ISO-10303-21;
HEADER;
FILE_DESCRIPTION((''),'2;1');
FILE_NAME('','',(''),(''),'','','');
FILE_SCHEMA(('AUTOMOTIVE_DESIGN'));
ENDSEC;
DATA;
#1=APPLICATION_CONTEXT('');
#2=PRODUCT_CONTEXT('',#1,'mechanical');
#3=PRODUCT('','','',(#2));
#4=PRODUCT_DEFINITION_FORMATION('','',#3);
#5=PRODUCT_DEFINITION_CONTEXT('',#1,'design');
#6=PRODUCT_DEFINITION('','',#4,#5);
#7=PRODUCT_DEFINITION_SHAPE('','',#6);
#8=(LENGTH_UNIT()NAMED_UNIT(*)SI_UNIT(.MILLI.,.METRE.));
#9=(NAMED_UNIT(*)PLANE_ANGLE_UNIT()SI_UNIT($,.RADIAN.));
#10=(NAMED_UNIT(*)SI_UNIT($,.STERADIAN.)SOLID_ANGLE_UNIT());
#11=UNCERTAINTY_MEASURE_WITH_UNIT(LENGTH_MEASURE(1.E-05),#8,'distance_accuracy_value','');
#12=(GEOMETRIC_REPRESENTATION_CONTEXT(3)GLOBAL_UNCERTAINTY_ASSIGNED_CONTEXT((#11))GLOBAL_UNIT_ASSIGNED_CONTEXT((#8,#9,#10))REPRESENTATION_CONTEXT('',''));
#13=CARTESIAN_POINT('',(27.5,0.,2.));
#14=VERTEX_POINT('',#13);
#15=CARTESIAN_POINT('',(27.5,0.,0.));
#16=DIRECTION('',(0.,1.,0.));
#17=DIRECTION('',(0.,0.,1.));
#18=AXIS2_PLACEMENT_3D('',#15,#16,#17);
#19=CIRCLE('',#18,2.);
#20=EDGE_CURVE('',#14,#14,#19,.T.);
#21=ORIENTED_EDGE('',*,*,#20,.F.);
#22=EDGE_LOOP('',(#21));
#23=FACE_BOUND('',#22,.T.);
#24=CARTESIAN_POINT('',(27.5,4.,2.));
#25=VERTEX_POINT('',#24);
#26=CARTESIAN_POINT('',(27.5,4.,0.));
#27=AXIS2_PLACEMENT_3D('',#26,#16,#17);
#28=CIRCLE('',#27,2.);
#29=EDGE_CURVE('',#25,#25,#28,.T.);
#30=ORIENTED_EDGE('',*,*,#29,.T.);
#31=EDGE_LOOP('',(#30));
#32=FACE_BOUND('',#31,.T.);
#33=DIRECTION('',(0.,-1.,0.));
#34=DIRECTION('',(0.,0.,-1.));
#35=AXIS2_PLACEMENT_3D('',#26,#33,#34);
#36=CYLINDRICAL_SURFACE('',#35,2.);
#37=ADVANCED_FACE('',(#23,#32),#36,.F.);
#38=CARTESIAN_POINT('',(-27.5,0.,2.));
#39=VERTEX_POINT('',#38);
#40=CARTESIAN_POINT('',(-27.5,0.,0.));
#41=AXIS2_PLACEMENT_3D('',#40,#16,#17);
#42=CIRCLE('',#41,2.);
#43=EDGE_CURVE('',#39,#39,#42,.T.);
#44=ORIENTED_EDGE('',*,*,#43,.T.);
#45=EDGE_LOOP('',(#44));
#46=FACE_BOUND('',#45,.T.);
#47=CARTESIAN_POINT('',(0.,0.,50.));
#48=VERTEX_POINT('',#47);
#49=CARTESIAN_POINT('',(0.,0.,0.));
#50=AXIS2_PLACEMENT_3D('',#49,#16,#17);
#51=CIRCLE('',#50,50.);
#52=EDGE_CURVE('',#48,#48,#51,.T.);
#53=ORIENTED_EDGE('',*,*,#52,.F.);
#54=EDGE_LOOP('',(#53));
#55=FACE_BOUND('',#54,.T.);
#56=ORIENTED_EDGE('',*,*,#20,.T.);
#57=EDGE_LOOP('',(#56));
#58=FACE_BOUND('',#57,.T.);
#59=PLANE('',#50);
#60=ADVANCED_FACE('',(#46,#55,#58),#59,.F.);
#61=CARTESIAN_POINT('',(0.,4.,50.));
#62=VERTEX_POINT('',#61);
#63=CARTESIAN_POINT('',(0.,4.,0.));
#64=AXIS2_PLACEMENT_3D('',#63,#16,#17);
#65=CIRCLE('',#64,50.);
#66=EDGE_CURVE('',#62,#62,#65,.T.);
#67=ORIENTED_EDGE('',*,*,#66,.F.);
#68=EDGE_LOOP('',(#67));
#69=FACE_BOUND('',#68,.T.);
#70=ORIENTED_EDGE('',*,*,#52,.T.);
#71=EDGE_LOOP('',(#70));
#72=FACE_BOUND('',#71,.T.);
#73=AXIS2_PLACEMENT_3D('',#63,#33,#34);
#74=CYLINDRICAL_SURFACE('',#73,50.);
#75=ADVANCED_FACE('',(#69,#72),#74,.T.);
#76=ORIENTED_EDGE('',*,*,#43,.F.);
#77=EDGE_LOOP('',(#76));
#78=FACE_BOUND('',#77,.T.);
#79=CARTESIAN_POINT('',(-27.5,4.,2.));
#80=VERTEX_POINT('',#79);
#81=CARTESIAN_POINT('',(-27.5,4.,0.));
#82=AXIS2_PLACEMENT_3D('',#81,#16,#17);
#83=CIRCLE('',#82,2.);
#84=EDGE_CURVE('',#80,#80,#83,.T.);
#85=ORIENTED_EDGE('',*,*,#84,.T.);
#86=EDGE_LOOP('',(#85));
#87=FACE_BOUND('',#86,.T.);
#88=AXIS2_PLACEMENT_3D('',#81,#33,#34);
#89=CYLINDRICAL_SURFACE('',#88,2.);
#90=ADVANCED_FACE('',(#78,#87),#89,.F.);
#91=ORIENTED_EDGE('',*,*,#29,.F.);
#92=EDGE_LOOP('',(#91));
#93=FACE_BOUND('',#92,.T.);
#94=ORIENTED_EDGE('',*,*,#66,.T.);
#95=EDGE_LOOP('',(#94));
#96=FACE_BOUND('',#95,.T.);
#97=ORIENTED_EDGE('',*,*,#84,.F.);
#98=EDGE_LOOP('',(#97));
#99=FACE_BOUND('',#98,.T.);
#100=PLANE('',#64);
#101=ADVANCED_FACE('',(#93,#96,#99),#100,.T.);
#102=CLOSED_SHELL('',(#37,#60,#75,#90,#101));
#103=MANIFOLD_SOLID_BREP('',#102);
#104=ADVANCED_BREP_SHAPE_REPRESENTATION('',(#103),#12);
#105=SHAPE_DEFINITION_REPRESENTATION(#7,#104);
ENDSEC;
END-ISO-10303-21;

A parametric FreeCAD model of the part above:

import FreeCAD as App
import Part
import Sketcher

V = App.Vector

doc = App.newDocument("Part")
body = doc.addObject("PartDesign::Body", "Body")

sketch1 = body.newObject("Sketcher::SketchObject", "Sketch")
sketch1.AttachmentSupport = (doc.getObject("XZ_Plane"), [""])
sketch1.MapMode = "FlatFace"
sketch1.addGeometry(Part.Circle(V(0, 0, 0), V(0, 0, 1), 50), False)
sketch1.addGeometry(Part.Circle(V(-27.5, 0, 0), V(0, 0, 1), 2), False)
sketch1.addGeometry(Part.Circle(V(27.5, 0, 0), V(0, 0, 1), 2), False)
sketch1.addConstraint(Sketcher.Constraint("Coincident", 0, 3, -1, 1))
sketch1.addConstraint(Sketcher.Constraint("Equal", 1, 2))
sketch1.addConstraint(Sketcher.Constraint("Symmetric", 1, 3, 2, 3, -1, 1))
sketch1.addConstraint(Sketcher.Constraint("PointOnObject", 1, 3, -1))
sketch1.addConstraint(Sketcher.Constraint("Diameter", 0, 100.0))
sketch1.addConstraint(Sketcher.Constraint("Diameter", 1, 4.0))
sketch1.addConstraint(Sketcher.Constraint("DistanceX", 1, 3, 2, 3, 55.0))
pad1 = body.newObject("PartDesign::Pad", "Pad")
pad1.Profile = sketch1
pad1.Length = 4
pad1.Reversed = True

doc.recompute()
